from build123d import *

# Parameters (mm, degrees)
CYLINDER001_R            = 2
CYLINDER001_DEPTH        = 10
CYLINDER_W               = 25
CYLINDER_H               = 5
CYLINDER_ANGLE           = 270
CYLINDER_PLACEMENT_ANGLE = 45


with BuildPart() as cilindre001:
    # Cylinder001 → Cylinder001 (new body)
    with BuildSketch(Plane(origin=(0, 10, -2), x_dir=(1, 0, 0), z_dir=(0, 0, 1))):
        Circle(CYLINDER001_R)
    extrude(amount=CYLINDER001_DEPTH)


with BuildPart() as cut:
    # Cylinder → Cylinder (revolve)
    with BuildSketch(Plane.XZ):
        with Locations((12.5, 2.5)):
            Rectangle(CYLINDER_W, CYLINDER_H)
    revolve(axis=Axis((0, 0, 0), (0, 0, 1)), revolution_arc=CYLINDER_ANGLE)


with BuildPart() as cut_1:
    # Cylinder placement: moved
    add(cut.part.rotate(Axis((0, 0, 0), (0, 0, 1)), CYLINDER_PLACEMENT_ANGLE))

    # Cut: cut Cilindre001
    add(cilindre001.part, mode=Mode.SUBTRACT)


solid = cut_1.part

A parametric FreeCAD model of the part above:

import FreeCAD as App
import Part
import Sketcher

doc = App.newDocument("Part")
body = doc.addObject("PartDesign::Body", "Body")

# Sketch on XY plane
sketch1 = doc.addObject("Sketcher::SketchObject", "Sketch")
body.addObject(sketch1)
sketch1.AttachmentSupport = (doc.XY_Plane, [""])
sketch1.MapMode = "FlatFace"
sketch1.AttachmentOffset = App.Placement(App.Vector(0, 0, -2), App.Rotation())
sketch1.addGeometry(Part.Circle(App.Vector(0, 10, 0), App.Vector(0, 0, 1), 2), False)
sketch1.addConstraint([
    Sketcher.Constraint("PointOnObject", 0, 3, -2),
    Sketcher.Constraint("Diameter", 0, 4.0),
    Sketcher.Constraint("DistanceY", -1, 1, 0, 3, 10.0),
])
pad1 = doc.addObject("PartDesign::Pad", "Pad")
body.addObject(pad1)
pad1.Profile = sketch1
pad1.Length = 10
body2 = doc.addObject("PartDesign::Body", "Body001")

# Sketch on XZ plane
sketch2 = doc.addObject("Sketcher::SketchObject", "Sketch001")
body2.addObject(sketch2)
sketch2.AttachmentSupport = (doc.getObject("XZ_Plane001"), [""])
sketch2.MapMode = "FlatFace"
sketch2.addGeometry([
    Part.LineSegment(App.Vector(0, 5, 0), App.Vector(0, 0, 0)),
    Part.LineSegment(App.Vector(0, 0, 0), App.Vector(25, 0, 0)),
    Part.LineSegment(App.Vector(25, 0, 0), App.Vector(25, 5, 0)),
    Part.LineSegment(App.Vector(25, 5, 0), App.Vector(0, 5, 0)),
], False)
sketch2.addConstraint([
    Sketcher.Constraint("Coincident", 0, 2, 1, 1),
    Sketcher.Constraint("Coincident", 1, 2, 2, 1),
    Sketcher.Constraint("Coincident", 2, 2, 3, 1),
    Sketcher.Constraint("Coincident", 3, 2, 0, 1),
    Sketcher.Constraint("Vertical", 0),
    Sketcher.Constraint("Horizontal", 1),
    Sketcher.Constraint("Vertical", 2),
    Sketcher.Constraint("Horizontal", 3),
    Sketcher.Constraint("Coincident", 0, 2, -1, 1),
    Sketcher.Constraint("DistanceX", 1, 1, 1, 2, 25.0),
    Sketcher.Constraint("DistanceY", 0, 2, 0, 1, 5.0),
])
revolution = doc.addObject("PartDesign::Revolution", "Revolution")
body2.addObject(revolution)
revolution.Profile = sketch2
revolution.ReferenceAxis = (sketch2, ["V_Axis"])
revolution.Angle = 270
body3 = doc.addObject("PartDesign::Body", "Body002")
doc.recompute()

body2.Placement = App.Placement(App.Vector(0, 0, 0), App.Rotation(App.Vector(0, 0, 1), 45))
boolean = doc.addObject("PartDesign::Boolean", "Boolean")
body3.addObject(boolean)
boolean.Type = "Fuse"
boolean.addObjects([body2])
doc.recompute()

boolean2 = doc.addObject("PartDesign::Boolean", "Boolean001")
body3.addObject(boolean2)
boolean2.Type = "Cut"
boolean2.addObjects([body])

doc.recompute()
